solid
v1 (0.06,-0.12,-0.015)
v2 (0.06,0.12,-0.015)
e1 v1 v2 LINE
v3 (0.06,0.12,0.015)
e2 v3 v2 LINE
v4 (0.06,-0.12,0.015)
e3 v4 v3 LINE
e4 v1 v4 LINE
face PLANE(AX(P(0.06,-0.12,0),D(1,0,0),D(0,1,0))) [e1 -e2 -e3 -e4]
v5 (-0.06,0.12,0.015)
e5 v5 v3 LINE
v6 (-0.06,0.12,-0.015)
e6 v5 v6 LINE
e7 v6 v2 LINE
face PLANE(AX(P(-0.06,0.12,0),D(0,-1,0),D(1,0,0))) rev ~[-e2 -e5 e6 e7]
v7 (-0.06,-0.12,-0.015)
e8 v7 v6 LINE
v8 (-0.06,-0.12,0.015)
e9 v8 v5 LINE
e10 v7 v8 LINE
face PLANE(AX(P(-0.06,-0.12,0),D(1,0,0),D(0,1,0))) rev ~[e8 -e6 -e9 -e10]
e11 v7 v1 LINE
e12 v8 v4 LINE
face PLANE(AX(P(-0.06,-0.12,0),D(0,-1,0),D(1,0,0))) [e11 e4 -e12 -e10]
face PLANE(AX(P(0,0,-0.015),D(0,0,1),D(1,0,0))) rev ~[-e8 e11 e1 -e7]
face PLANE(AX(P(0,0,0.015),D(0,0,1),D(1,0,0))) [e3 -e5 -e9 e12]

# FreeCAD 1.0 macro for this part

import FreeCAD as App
import Part
import Sketcher

V = App.Vector


def add_polygon(sketch, points):
    """Adds a closed chain of lines whose ends are joined by coincident constraints."""
    first, n = sketch.GeometryCount, len(points)
    for a, b in zip(points, points[1:] + points[:1]):
        sketch.addGeometry(Part.LineSegment(App.Vector(*a, 0), App.Vector(*b, 0)), False)
    for i in range(n):
        sketch.addConstraint(Sketcher.Constraint("Coincident", first + i, 2, first + (i + 1) % n, 1))

doc = App.newDocument("Part")
params = doc.addObject("Spreadsheet::Sheet", "Params")
for row, (alias, value) in enumerate([
    ("sketch1_width", "0.12 mm"),
    ("sketch1_height", "0.24 mm"),
    ("pad1_length", "0.03 mm"),
], start=1):
    params.set(f"A{row}", alias)
    params.set(f"B{row}", "=" + value)
    params.setAlias(f"B{row}", alias)

body = doc.addObject("PartDesign::Body", "Body")

# Sketch on XY plane
sketch1 = body.newObject("Sketcher::SketchObject", "Sketch")
sketch1.AttachmentSupport = (doc.getObject("XY_Plane"), [""])
sketch1.MapMode = "FlatFace"
add_polygon(sketch1, [(-0.06, 0.12), (-0.06, -0.12), (0.06, -0.12), (0.06, 0.12)])  # lines 0-3
sketch1.addConstraint(Sketcher.Constraint("Vertical", 0))
sketch1.addConstraint(Sketcher.Constraint("Horizontal", 1))
sketch1.addConstraint(Sketcher.Constraint("Vertical", 2))
sketch1.addConstraint(Sketcher.Constraint("Horizontal", 3))
sketch1.addConstraint(Sketcher.Constraint("Symmetric", 0, 2, 2, 2, -1, 1))
sketch1.addConstraint(Sketcher.Constraint("DistanceX", 1, 1, 1, 2, 0.12))
sketch1.addConstraint(Sketcher.Constraint("DistanceY", 0, 2, 0, 1, 0.24))
sketch1.setExpression("Constraints[9]", "Params.sketch1_width")
sketch1.setExpression("Constraints[10]", "Params.sketch1_height")
pad1 = body.newObject("PartDesign::Pad", "Pad")
pad1.Profile = sketch1
pad1.setExpression("Length", "Params.pad1_length")
pad1.Midplane = True

doc.recompute()
